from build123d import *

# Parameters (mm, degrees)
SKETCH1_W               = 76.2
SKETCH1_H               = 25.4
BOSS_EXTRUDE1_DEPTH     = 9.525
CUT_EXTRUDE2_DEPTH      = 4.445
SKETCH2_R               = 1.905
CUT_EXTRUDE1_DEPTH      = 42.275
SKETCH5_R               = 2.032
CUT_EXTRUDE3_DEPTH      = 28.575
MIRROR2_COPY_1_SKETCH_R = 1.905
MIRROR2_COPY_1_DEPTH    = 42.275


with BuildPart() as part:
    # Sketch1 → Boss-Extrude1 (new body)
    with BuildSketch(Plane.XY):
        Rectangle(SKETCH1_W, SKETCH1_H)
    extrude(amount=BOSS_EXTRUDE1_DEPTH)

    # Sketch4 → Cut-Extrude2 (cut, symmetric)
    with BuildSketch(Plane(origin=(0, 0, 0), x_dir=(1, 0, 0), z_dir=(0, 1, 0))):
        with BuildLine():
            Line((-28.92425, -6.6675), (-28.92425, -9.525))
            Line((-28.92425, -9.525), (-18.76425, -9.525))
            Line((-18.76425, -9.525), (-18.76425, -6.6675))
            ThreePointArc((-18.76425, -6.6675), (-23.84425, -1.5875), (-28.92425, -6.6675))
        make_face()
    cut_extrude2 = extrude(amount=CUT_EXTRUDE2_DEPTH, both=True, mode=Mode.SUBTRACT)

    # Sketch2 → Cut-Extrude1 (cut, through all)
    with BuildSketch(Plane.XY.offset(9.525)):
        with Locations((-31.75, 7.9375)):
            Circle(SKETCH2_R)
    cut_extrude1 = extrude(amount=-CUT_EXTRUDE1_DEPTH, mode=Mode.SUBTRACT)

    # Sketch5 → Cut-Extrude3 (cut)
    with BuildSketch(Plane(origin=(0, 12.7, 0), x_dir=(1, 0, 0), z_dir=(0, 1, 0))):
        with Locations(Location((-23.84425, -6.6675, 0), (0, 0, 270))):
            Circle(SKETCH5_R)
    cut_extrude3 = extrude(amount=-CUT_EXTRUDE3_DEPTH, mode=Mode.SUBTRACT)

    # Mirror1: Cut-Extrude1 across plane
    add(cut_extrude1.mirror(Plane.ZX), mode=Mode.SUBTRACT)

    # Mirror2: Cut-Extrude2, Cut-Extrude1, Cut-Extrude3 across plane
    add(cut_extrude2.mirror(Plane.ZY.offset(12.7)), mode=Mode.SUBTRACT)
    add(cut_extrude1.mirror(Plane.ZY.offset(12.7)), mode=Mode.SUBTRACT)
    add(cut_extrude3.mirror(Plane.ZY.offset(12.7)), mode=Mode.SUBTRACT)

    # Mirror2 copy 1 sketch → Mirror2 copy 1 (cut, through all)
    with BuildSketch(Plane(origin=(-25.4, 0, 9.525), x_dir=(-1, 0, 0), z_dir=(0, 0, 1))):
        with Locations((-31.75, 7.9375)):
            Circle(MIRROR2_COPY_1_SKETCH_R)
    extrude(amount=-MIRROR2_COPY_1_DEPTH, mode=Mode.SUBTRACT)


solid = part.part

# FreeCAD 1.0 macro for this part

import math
import FreeCAD as App
import Part
import Sketcher
Q = App.Units.Quantity


def add_polygon(sketch, points):
    """Adds a closed chain of lines whose ends are joined by coincident constraints."""
    first, n = sketch.GeometryCount, len(points)
    for a, b in zip(points, points[1:] + points[:1]):
        sketch.addGeometry(Part.LineSegment(App.Vector(*a, 0), App.Vector(*b, 0)), False)
    for i in range(n):
        sketch.addConstraint(Sketcher.Constraint("Coincident", first + i, 2, first + (i + 1) % n, 1))

doc = App.newDocument("Part")
body = doc.addObject("PartDesign::Body", "Body")

# Sketch on XY plane
sketch1 = body.newObject("Sketcher::SketchObject", "Sketch")
sketch1.AttachmentSupport = (doc.getObject("XY_Plane"), [""])
sketch1.MapMode = "FlatFace"
add_polygon(sketch1, [(-38, 13), (-38, -13), (38, -13), (38, 13)])  # lines 0-3
sketch1.addConstraint(Sketcher.Constraint("Vertical", 0))
sketch1.addConstraint(Sketcher.Constraint("Horizontal", 1))
sketch1.addConstraint(Sketcher.Constraint("Vertical", 2))
sketch1.addConstraint(Sketcher.Constraint("Horizontal", 3))
sketch1.addConstraint(Sketcher.Constraint("Symmetric", 0, 2, 2, 2, -1, 1))
sketch1.addConstraint(Sketcher.Constraint("DistanceX", 1, 1, 1, 2, Q("3 in")))
sketch1.addConstraint(Sketcher.Constraint("DistanceY", 0, 2, 0, 1, Q("1 in")))
pad1 = body.newObject("PartDesign::Pad", "Pad")
pad1.Profile = sketch1
pad1.Length = Q("0.375 in")

# Sketch on XZ plane
sketch2 = body.newObject("Sketcher::SketchObject", "Sketch001")
sketch2.AttachmentSupport = (doc.getObject("XZ_Plane"), [""])
sketch2.MapMode = "FlatFace"
sketch2.addGeometry(Part.LineSegment(App.Vector(-28.9, 6.7, 0), App.Vector(-28.9, 9.5, 0)), False)
sketch2.addGeometry(Part.LineSegment(App.Vector(-28.9, 9.5, 0), App.Vector(-18.8, 9.5, 0)), False)
sketch2.addGeometry(Part.LineSegment(App.Vector(-18.8, 9.5, 0), App.Vector(-18.8, 6.7, 0)), False)
sketch2.addGeometry(Part.ArcOfCircle(Part.Circle(App.Vector(-23.8, 6.7, 0), App.Vector(0, 0, 1), 5.1), math.radians(180), math.radians(360)), False)
sketch2.addConstraint(Sketcher.Constraint("Coincident", 0, 2, 1, 1))
sketch2.addConstraint(Sketcher.Constraint("Coincident", 1, 2, 2, 1))
sketch2.addConstraint(Sketcher.Constraint("Tangent", 2, 2, 3, 2))
sketch2.addConstraint(Sketcher.Constraint("Tangent", 3, 1, 0, 1))
sketch2.addConstraint(Sketcher.Constraint("Vertical", 0))
sketch2.addConstraint(Sketcher.Constraint("Horizontal", 1))
sketch2.addConstraint(Sketcher.Constraint("Vertical", 2))
sketch2.addConstraint(Sketcher.Constraint("Radius", 3, Q("0.2 in")))
sketch2.addConstraint(Sketcher.Constraint("DistanceY", 0, 1, 0, 2, Q("0.1125 in")))
sketch2.addConstraint(Sketcher.Constraint("DistanceY", -1, 1, 0, 2, Q("0.375 in")))
sketch2.addConstraint(Sketcher.Constraint("DistanceX", 3, 3, -1, 1, 23.84425))
pocket1 = body.newObject("PartDesign::Pocket", "Pocket")
pocket1.Profile = sketch2
pocket1.Length = Q("0.35 in")
pocket1.Midplane = True

# Sketch on XY plane
sketch3 = body.newObject("Sketcher::SketchObject", "Sketch002")
sketch3.AttachmentSupport = (doc.getObject("XY_Plane"), [""])
sketch3.MapMode = "FlatFace"
sketch3.AttachmentOffset = App.Placement(App.Vector(0, 0, 0.375 * 25.4), App.Rotation())
sketch3.addGeometry(Part.Circle(App.Vector(-31.8, 7.9, 0), App.Vector(0, 0, 1), 1.9), False)
sketch3.addConstraint(Sketcher.Constraint("Diameter", 0, Q("0.15 in")))
sketch3.addConstraint(Sketcher.Constraint("DistanceX", 0, 3, -1, 1, Q("1.25 in")))
sketch3.addConstraint(Sketcher.Constraint("DistanceY", -1, 1, 0, 3, Q("0.3125 in")))
pocket2 = body.newObject("PartDesign::Pocket", "Pocket001")
pocket2.Profile = sketch3
pocket2.Type = "ThroughAll"

# Sketch on XZ plane
sketch4 = body.newObject("Sketcher::SketchObject", "Sketch003")
sketch4.AttachmentSupport = (doc.getObject("XZ_Plane"), [""])
sketch4.MapMode = "FlatFace"
sketch4.AttachmentOffset = App.Placement(App.Vector(0, 0, -0.5 * 25.4), App.Rotation())
sketch4.addGeometry(Part.Circle(App.Vector(-23.8, 6.7, 0), App.Vector(0, 0, 1), 2), False)
sketch4.addConstraint(Sketcher.Constraint("Diameter", 0, Q("0.16 in")))
sketch4.addConstraint(Sketcher.Constraint("DistanceY", -1, 1, 0, 3, Q("0.2625 in")))
sketch4.addConstraint(Sketcher.Constraint("DistanceX", 0, 3, -1, 1, 23.84425))
pocket3 = body.newObject("PartDesign::Pocket", "Pocket002")
pocket3.Profile = sketch4
pocket3.Length = Q("1.125 in")
pocket3.Reversed = True
doc.recompute()

mirrored = body.newObject("PartDesign::Mirrored", "Mirrored")
mirrored.Originals = [pocket2]
mirrored.MirrorPlane = (doc.getObject("XZ_Plane"), [""])
body.Tip = mirrored
doc.recompute()

datumplane = body.newObject("PartDesign::Plane", "DatumPlane")
datumplane.AttachmentSupport = (doc.getObject("YZ_Plane"), [""])
datumplane.MapMode = "FlatFace"
datumplane.AttachmentOffset = App.Placement(App.Vector(0, 0, -0.5 * 25.4), App.Rotation())
mirrored2 = body.newObject("PartDesign::Mirrored", "Mirrored001")
mirrored2.Originals = [pocket1, pocket2, pocket3]
mirrored2.MirrorPlane = (datumplane, [""])
body.Tip = mirrored2

# Sketch on XY plane
sketch5 = body.newObject("Sketcher::SketchObject", "Sketch004")
sketch5.AttachmentSupport = (doc.getObject("XY_Plane"), [""])
sketch5.MapMode = "FlatFace"
sketch5.AttachmentOffset = App.Placement(App.Vector(0, 0, 0.375 * 25.4), App.Rotation())
sketch5.addGeometry(Part.Circle(App.Vector(6.3, -7.9, 0), App.Vector(0, 0, 1), 1.9), False)
sketch5.addConstraint(Sketcher.Constraint("Diameter", 0, Q("0.15 in")))
sketch5.addConstraint(Sketcher.Constraint("DistanceX", -1, 1, 0, 3, Q("0.25 in")))
sketch5.addConstraint(Sketcher.Constraint("DistanceY", 0, 3, -1, 1, Q("0.3125 in")))
pocket4 = body.newObject("PartDesign::Pocket", "Pocket003")
pocket4.Profile = sketch5
pocket4.Type = "ThroughAll"

doc.recompute()
